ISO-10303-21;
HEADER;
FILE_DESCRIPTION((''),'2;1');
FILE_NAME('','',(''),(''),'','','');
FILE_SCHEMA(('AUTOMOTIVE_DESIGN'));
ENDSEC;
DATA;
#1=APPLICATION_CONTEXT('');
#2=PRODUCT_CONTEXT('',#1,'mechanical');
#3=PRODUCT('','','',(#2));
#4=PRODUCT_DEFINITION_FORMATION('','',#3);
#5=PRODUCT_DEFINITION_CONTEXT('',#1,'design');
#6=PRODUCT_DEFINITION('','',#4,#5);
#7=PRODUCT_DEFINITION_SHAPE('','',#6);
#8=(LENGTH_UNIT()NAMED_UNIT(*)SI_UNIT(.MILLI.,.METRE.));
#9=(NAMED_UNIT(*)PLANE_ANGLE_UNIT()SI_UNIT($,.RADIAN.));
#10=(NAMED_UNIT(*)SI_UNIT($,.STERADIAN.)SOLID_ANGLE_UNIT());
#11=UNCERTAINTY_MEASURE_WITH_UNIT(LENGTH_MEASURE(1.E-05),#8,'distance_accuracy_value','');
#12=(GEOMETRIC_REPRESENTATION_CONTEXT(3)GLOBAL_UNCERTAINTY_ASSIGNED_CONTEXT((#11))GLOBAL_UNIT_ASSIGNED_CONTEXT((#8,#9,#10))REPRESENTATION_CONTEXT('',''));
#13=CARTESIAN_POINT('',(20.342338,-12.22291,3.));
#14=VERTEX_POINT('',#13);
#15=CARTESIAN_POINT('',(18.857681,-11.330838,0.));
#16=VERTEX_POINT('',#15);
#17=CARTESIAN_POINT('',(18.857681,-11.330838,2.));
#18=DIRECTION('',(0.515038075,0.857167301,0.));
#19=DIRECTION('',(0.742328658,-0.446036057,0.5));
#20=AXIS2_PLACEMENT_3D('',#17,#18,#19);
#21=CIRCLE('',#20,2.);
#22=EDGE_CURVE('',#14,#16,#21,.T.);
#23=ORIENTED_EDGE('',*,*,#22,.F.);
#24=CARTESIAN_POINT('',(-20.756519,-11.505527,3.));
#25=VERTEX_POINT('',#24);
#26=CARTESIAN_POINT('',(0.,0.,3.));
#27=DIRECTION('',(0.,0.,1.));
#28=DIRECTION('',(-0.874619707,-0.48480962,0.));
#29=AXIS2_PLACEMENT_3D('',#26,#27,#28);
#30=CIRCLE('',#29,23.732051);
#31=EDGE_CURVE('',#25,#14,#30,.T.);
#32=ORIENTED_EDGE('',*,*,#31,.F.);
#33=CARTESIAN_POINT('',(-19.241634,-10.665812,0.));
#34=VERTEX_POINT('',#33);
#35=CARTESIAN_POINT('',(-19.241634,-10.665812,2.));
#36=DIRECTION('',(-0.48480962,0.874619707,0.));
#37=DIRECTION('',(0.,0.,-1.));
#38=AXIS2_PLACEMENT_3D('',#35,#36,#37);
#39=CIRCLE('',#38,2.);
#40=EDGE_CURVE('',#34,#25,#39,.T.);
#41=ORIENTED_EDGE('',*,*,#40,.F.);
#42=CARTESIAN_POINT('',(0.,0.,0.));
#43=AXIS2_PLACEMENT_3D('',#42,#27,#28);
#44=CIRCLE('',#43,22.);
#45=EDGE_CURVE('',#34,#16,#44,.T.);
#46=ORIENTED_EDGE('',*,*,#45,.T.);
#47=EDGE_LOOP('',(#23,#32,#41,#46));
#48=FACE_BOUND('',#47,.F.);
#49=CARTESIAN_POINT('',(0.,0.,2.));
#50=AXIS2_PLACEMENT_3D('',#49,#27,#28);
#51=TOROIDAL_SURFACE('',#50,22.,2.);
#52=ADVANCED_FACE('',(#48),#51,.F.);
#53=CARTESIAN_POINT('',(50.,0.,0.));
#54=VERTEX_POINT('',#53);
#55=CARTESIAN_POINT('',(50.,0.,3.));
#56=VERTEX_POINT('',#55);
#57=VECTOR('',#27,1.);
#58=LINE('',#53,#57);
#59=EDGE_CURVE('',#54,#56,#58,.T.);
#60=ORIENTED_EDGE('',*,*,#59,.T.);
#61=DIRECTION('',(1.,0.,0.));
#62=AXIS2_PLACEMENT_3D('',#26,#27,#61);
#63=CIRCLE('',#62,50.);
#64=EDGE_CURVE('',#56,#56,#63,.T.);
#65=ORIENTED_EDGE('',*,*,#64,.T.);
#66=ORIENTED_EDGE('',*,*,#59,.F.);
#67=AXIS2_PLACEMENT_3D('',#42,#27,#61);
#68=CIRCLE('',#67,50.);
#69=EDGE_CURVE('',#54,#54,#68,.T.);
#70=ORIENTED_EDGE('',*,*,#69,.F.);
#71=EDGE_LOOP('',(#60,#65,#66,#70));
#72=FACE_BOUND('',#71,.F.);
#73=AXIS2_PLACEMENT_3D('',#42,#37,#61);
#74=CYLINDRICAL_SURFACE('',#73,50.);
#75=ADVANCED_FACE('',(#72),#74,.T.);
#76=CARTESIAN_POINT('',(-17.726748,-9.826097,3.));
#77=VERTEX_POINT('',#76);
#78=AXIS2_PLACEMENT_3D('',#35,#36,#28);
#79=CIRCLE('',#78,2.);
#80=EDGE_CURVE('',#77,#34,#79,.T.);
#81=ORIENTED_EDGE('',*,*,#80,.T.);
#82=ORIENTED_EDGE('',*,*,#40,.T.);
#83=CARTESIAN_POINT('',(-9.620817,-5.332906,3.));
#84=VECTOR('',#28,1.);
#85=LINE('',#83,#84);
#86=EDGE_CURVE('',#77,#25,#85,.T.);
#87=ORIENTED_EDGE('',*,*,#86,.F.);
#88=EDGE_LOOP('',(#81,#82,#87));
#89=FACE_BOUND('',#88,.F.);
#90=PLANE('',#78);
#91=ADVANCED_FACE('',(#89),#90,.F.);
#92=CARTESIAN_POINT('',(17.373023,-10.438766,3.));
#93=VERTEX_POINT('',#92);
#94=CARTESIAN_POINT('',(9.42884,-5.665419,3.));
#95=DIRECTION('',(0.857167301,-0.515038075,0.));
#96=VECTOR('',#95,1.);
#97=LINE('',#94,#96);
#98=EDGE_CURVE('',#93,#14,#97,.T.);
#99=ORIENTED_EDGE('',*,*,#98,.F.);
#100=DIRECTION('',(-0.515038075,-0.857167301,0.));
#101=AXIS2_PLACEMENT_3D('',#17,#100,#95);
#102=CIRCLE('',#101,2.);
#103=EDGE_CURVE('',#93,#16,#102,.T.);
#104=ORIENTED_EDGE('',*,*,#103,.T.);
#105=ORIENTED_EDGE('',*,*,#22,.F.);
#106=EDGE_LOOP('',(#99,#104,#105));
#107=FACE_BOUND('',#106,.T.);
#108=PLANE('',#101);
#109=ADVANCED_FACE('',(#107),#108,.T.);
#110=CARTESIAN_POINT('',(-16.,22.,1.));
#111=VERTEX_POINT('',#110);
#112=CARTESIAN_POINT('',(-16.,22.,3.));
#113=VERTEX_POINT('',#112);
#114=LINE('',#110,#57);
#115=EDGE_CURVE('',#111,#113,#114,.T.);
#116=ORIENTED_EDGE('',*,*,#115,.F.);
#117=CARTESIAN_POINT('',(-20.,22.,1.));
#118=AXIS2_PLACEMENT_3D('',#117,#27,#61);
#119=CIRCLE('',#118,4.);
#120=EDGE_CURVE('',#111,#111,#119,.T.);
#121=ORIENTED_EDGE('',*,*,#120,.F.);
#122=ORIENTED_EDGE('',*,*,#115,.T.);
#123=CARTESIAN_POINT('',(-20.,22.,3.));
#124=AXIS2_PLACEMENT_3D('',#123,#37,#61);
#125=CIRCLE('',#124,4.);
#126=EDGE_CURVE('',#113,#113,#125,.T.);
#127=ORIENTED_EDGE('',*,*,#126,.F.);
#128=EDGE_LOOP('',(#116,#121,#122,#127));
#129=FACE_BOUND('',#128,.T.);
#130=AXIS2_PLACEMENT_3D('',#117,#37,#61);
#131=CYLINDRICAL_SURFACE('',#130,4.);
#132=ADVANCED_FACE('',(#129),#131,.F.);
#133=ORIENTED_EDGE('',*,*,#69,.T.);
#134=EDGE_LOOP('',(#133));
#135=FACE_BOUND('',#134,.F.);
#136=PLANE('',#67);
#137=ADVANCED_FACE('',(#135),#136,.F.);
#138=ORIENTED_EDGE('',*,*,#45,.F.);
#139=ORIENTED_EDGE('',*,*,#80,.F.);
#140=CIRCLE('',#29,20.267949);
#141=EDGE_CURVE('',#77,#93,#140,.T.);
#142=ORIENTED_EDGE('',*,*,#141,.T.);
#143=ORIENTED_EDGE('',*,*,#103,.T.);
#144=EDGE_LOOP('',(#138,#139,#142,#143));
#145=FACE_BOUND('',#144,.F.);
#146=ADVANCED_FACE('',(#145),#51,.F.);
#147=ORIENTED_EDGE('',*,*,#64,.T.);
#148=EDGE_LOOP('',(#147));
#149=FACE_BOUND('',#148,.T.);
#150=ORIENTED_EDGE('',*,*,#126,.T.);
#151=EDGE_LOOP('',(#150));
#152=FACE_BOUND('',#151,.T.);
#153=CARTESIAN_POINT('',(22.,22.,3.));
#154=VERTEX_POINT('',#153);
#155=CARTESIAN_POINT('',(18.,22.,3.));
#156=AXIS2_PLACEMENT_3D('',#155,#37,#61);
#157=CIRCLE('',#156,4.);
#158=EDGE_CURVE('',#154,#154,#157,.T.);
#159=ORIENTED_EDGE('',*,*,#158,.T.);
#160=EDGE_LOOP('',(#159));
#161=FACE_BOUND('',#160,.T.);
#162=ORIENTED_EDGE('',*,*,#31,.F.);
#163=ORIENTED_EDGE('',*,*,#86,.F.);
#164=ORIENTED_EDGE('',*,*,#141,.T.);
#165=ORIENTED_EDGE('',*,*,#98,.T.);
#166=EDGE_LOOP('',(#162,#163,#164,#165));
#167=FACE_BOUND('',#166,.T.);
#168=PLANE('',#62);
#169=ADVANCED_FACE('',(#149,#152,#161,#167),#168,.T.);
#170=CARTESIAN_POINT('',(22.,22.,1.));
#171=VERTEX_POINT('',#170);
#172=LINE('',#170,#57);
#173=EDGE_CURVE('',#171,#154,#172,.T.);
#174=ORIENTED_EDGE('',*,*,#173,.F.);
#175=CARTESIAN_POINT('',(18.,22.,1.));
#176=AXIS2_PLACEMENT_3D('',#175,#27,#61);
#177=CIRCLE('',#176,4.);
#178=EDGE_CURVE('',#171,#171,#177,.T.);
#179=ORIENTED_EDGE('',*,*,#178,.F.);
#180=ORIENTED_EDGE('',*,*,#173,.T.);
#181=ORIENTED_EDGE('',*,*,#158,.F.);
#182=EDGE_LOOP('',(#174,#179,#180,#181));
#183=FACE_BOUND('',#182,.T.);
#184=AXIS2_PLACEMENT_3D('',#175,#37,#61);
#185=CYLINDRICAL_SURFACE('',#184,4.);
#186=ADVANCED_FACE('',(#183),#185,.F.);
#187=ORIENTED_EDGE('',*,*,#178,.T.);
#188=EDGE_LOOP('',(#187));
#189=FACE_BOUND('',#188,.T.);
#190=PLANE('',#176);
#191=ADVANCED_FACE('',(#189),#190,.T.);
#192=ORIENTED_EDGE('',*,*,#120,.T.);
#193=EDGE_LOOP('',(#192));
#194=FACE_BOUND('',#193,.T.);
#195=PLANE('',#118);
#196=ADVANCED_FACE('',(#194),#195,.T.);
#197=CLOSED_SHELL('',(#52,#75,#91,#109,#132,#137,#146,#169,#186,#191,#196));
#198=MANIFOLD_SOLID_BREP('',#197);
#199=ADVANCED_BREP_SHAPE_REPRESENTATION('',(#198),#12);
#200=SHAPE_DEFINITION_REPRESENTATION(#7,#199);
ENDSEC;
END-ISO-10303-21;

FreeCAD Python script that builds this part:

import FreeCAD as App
import Part
import Sketcher

V = App.Vector
Q = App.Units.Quantity

doc = App.newDocument("Part")
body = doc.addObject("PartDesign::Body", "Body")

sketch1 = body.newObject("Sketcher::SketchObject", "Sketch")
sketch1.AttachmentSupport = (doc.getObject("XZ_Plane"), [""])
sketch1.MapMode = "FlatFace"
sketch1.addGeometry(Part.Circle(V(22, 0, 0), V(0, 0, 1), 2), False)
sketch1.addConstraint([
    Sketcher.Constraint("PointOnObject", 0, 3, -1),
    Sketcher.Constraint("Diameter", 0, Q("4 mm")),
    Sketcher.Constraint("DistanceX", -1, 1, 0, 3, Q("22 mm")),
])
revolution = body.newObject("PartDesign::Revolution", "Revolution")
revolution.Profile = sketch1
revolution.ReferenceAxis = (sketch1, ["V_Axis"])
revolution.Angle = 120
body2 = doc.addObject("PartDesign::Body", "Body001")
doc.recompute()

body.Placement = App.Placement(V(0, 0, 2), App.Rotation(V(0, 0, 1), 209))
boolean = body2.newObject("PartDesign::Boolean", "Boolean")
boolean.Type = "Fuse"
boolean.addObjects([body])
body3 = doc.addObject("PartDesign::Body", "Body002")

sketch2 = body3.newObject("Sketcher::SketchObject", "Sketch001")
sketch2.AttachmentSupport = (doc.getObject("XY_Plane002"), [""])
sketch2.MapMode = "FlatFace"
sketch2.AttachmentOffset = App.Placement(V(0, 0, 1), App.Rotation())
sketch2.addGeometry(Part.Circle(V(18, 22, 0), V(0, 0, 1), 4), False)
sketch2.addConstraint([
    Sketcher.Constraint("Diameter", 0, Q("8 mm")),
    Sketcher.Constraint("DistanceX", -1, 1, 0, 3, Q("18 mm")),
    Sketcher.Constraint("DistanceY", -1, 1, 0, 3, Q("22 mm")),
])
pad1 = body3.newObject("PartDesign::Pad", "Pad")
pad1.Profile = sketch2
pad1.Length = 10
body4 = doc.addObject("PartDesign::Body", "Body003")
body4.AllowCompound = True

sketch3 = body4.newObject("Sketcher::SketchObject", "Sketch002")
sketch3.AttachmentSupport = (doc.getObject("XY_Plane003"), [""])
sketch3.MapMode = "FlatFace"
sketch3.AttachmentOffset = App.Placement(V(0, 0, 1), App.Rotation())
sketch3.addGeometry(Part.Circle(V(-20, 22, 0), V(0, 0, 1), 4), False)
sketch3.addConstraint([
    Sketcher.Constraint("Diameter", 0, Q("8 mm")),
    Sketcher.Constraint("DistanceX", 0, 3, -1, 1, Q("20 mm")),
    Sketcher.Constraint("DistanceY", -1, 1, 0, 3, Q("22 mm")),
])
pad2 = body4.newObject("PartDesign::Pad", "Pad001")
pad2.Profile = sketch3
pad2.Length = 10
doc.recompute()

boolean2 = body4.newObject("PartDesign::Boolean", "Boolean001")
boolean2.Type = "Fuse"
boolean2.addObjects([body3])
doc.recompute()

boolean3 = body4.newObject("PartDesign::Boolean", "Boolean002")
boolean3.Type = "Fuse"
boolean3.addObjects([body2])
body5 = doc.addObject("PartDesign::Body", "Body004")

sketch4 = body5.newObject("Sketcher::SketchObject", "Sketch003")
sketch4.AttachmentSupport = (doc.getObject("XY_Plane004"), [""])
sketch4.MapMode = "FlatFace"
sketch4.addGeometry(Part.Circle(V(0, 0, 0), V(0, 0, 1), 50), False)
sketch4.addConstraint([
    Sketcher.Constraint("Coincident", 0, 3, -1, 1),
    Sketcher.Constraint("Diameter", 0, Q("100 mm")),
])
pad3 = body5.newObject("PartDesign::Pad", "Pad002")
pad3.Profile = sketch4
pad3.Length = 3
doc.recompute()

boolean4 = body5.newObject("PartDesign::Boolean", "Boolean003")
boolean4.Type = "Cut"
boolean4.addObjects([body4])

doc.recompute()
